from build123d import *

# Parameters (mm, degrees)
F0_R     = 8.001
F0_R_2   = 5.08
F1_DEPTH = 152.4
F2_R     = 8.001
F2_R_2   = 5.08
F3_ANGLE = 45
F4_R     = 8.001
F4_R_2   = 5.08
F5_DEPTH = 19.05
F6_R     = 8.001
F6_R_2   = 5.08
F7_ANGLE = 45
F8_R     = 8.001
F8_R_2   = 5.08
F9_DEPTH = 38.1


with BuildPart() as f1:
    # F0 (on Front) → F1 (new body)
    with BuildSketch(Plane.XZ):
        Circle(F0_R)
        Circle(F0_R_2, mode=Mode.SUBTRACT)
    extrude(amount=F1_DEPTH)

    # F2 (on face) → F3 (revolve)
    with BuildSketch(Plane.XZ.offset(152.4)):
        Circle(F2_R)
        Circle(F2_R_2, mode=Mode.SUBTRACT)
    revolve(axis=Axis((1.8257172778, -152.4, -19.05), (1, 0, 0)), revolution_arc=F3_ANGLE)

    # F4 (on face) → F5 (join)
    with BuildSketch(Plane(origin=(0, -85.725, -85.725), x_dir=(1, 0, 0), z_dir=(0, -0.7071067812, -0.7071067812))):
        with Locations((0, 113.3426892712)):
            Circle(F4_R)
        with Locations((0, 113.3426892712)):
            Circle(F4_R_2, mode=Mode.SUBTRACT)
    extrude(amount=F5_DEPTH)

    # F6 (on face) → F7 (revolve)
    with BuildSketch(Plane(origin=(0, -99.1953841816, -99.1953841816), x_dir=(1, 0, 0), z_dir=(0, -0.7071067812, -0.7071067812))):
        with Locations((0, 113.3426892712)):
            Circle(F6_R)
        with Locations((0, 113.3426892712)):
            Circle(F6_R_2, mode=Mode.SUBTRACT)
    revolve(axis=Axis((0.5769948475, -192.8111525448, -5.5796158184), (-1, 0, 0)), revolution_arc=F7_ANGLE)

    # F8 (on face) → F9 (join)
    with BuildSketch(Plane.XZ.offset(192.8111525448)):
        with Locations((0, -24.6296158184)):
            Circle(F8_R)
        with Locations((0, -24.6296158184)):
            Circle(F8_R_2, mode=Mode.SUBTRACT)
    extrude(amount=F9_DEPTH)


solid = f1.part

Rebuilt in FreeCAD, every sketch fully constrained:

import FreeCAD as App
import Part
import Sketcher
Q = App.Units.Quantity

doc = App.newDocument("Part")
params = doc.addObject("Spreadsheet::Sheet", "Params")
for row, (alias, value) in enumerate([
    ("sketch1_diameter", "0.4 in"),
    ("sketch1_diameter2", "0.63 in"),
    ("pad1_length", "6 in"),
    ("sketch2_diameter", "0.4 in"),
    ("sketch2_diameter2", "0.63 in"),
    ("revolution_angle", "45 deg"),
    ("sketch3_diameter", "0.4 in"),
    ("sketch3_diameter2", "0.63 in"),
    ("pad2_length", "0.75 in"),
    ("sketch4_diameter", "0.4 in"),
    ("sketch4_diameter2", "0.63 in"),
    ("revolution2_angle", "45 deg"),
    ("sketch5_diameter", "0.4 in"),
    ("sketch5_diameter2", "0.63 in"),
    ("pad3_length", "1.5 in"),
], start=1):
    params.set(f"A{row}", alias)
    params.set(f"B{row}", "=" + value)
    params.setAlias(f"B{row}", alias)

body = doc.addObject("PartDesign::Body", "Body")

sketch1 = body.newObject("Sketcher::SketchObject", "Sketch")
sketch1.AttachmentSupport = (doc.getObject("XZ_Plane"), [""])
sketch1.MapMode = "FlatFace"
sketch1.addGeometry(Part.Circle(App.Vector(0, 0, 0), App.Vector(0, 0, 1), 8.001), False)
sketch1.addGeometry(Part.Circle(App.Vector(0, 0, 0), App.Vector(0, 0, 1), 5.08), False)
sketch1.addConstraint(Sketcher.Constraint("Coincident", 0, 3, -1, 1))
sketch1.addConstraint(Sketcher.Constraint("Coincident", 1, 3, -1, 1))
sketch1.addConstraint(Sketcher.Constraint("Diameter", 1, Q("0.4 in")))
sketch1.addConstraint(Sketcher.Constraint("Diameter", 0, Q("0.63 in")))
sketch1.setExpression("Constraints[2]", "Params.sketch1_diameter")
sketch1.setExpression("Constraints[3]", "Params.sketch1_diameter2")
pad1 = body.newObject("PartDesign::Pad", "Pad")
pad1.Profile = sketch1
pad1.setExpression("Length", "Params.pad1_length")

sketch2 = body.newObject("Sketcher::SketchObject", "Sketch001")
sketch2.AttachmentSupport = (doc.getObject("XZ_Plane"), [""])
sketch2.MapMode = "FlatFace"
sketch2.AttachmentOffset = App.Placement(App.Vector(0, 0, 6 * 25.4), App.Rotation())
sketch2.addGeometry(Part.Circle(App.Vector(0, 0, 0), App.Vector(0, 0, 1), 8.001), False)
sketch2.addGeometry(Part.Circle(App.Vector(0, 0, 0), App.Vector(0, 0, 1), 5.08), False)
sketch2.addGeometry(Part.LineSegment(App.Vector(0, -19.05, 0), App.Vector(10, -19.05, 0)), True)
sketch2.addConstraint(Sketcher.Constraint("Horizontal", 2))
sketch2.addConstraint(Sketcher.Constraint("Coincident", 0, 3, -1, 1))
sketch2.addConstraint(Sketcher.Constraint("Coincident", 1, 3, -1, 1))
sketch2.addConstraint(Sketcher.Constraint("PointOnObject", 2, 1, -2))
sketch2.addConstraint(Sketcher.Constraint("Diameter", 1, Q("0.4 in")))
sketch2.addConstraint(Sketcher.Constraint("Diameter", 0, Q("0.63 in")))
sketch2.addConstraint(Sketcher.Constraint("DistanceY", 2, 1, -1, 1, Q("0.75 in")))
sketch2.addConstraint(Sketcher.Constraint("DistanceX", 2, 1, 2, 2, Q("10 mm")))
sketch2.setExpression("Constraints[4]", "Params.sketch2_diameter")
sketch2.setExpression("Constraints[5]", "Params.sketch2_diameter2")
revolution = body.newObject("PartDesign::Revolution", "Revolution")
revolution.Profile = sketch2
revolution.ReferenceAxis = (sketch2, ["Axis0"])
revolution.setExpression("Angle", "Params.revolution_angle")

sketch3 = body.newObject("Sketcher::SketchObject", "Sketch002")
sketch3.Placement = App.Placement(App.Vector(0, -85.725, -85.725), App.Rotation(App.Vector(1, 0, 0), App.Vector(0, -0.707106781, 0.707106781), App.Vector(0, -0.707106781, -0.707106781), "ZXY"))
sketch3.addGeometry(Part.Circle(App.Vector(0, 113.342689, 0), App.Vector(0, 0, 1), 8.001), False)
sketch3.addGeometry(Part.Circle(App.Vector(0, 113.342689, 0), App.Vector(0, 0, 1), 5.08), False)
sketch3.addConstraint(Sketcher.Constraint("Coincident", 1, 3, 0, 3))
sketch3.addConstraint(Sketcher.Constraint("PointOnObject", 0, 3, -2))
sketch3.addConstraint(Sketcher.Constraint("Diameter", 1, Q("0.4 in")))
sketch3.addConstraint(Sketcher.Constraint("Diameter", 0, Q("0.63 in")))
sketch3.addConstraint(Sketcher.Constraint("DistanceY", -1, 1, 0, 3, Q("113.342689 mm")))
sketch3.setExpression("Constraints[2]", "Params.sketch3_diameter")
sketch3.setExpression("Constraints[3]", "Params.sketch3_diameter2")
pad2 = body.newObject("PartDesign::Pad", "Pad001")
pad2.Profile = sketch3
pad2.setExpression("Length", "Params.pad2_length")

sketch4 = body.newObject("Sketcher::SketchObject", "Sketch003")
sketch4.Placement = App.Placement(App.Vector(0, -99.195384, -99.195384), App.Rotation(App.Vector(1, 0, 0), App.Vector(0, -0.707106781, 0.707106781), App.Vector(0, -0.707106781, -0.707106781), "ZXY"))
sketch4.addGeometry(Part.Circle(App.Vector(0, 113.342689, 0), App.Vector(0, 0, 1), 8.001), False)
sketch4.addGeometry(Part.Circle(App.Vector(0, 113.342689, 0), App.Vector(0, 0, 1), 5.08), False)
sketch4.addGeometry(Part.LineSegment(App.Vector(0, 132.392689, 0), App.Vector(-10, 132.392689, 0)), True)
sketch4.addConstraint(Sketcher.Constraint("Horizontal", 2))
sketch4.addConstraint(Sketcher.Constraint("Coincident", 1, 3, 0, 3))
sketch4.addConstraint(Sketcher.Constraint("PointOnObject", 0, 3, -2))
sketch4.addConstraint(Sketcher.Constraint("PointOnObject", 2, 1, -2))
sketch4.addConstraint(Sketcher.Constraint("Diameter", 1, Q("0.4 in")))
sketch4.addConstraint(Sketcher.Constraint("Diameter", 0, Q("0.63 in")))
sketch4.addConstraint(Sketcher.Constraint("DistanceY", 0, 3, 2, 1, Q("0.75 in")))
sketch4.addConstraint(Sketcher.Constraint("DistanceX", 2, 2, 2, 1, Q("10 mm")))
sketch4.addConstraint(Sketcher.Constraint("DistanceY", -1, 1, 0, 3, Q("113.342689 mm")))
sketch4.setExpression("Constraints[4]", "Params.sketch4_diameter")
sketch4.setExpression("Constraints[5]", "Params.sketch4_diameter2")
revolution2 = body.newObject("PartDesign::Revolution", "Revolution001")
revolution2.Profile = sketch4
revolution2.ReferenceAxis = (sketch4, ["Axis0"])
revolution2.setExpression("Angle", "Params.revolution2_angle")

sketch5 = body.newObject("Sketcher::SketchObject", "Sketch004")
sketch5.AttachmentSupport = (doc.getObject("XZ_Plane"), [""])
sketch5.MapMode = "FlatFace"
sketch5.AttachmentOffset = App.Placement(App.Vector(0, 0, 192.811153), App.Rotation())
sketch5.addGeometry(Part.Circle(App.Vector(0, -24.629616, 0), App.Vector(0, 0, 1), 8.001), False)
sketch5.addGeometry(Part.Circle(App.Vector(0, -24.629616, 0), App.Vector(0, 0, 1), 5.08), False)
sketch5.addConstraint(Sketcher.Constraint("Coincident", 1, 3, 0, 3))
sketch5.addConstraint(Sketcher.Constraint("PointOnObject", 0, 3, -2))
sketch5.addConstraint(Sketcher.Constraint("Diameter", 1, Q("0.4 in")))
sketch5.addConstraint(Sketcher.Constraint("Diameter", 0, Q("0.63 in")))
sketch5.addConstraint(Sketcher.Constraint("DistanceY", 0, 3, -1, 1, Q("24.629616 mm")))
sketch5.setExpression("Constraints[2]", "Params.sketch5_diameter")
sketch5.setExpression("Constraints[3]", "Params.sketch5_diameter2")
pad3 = body.newObject("PartDesign::Pad", "Pad002")
pad3.Profile = sketch5
pad3.setExpression("Length", "Params.pad3_length")

doc.recompute()
